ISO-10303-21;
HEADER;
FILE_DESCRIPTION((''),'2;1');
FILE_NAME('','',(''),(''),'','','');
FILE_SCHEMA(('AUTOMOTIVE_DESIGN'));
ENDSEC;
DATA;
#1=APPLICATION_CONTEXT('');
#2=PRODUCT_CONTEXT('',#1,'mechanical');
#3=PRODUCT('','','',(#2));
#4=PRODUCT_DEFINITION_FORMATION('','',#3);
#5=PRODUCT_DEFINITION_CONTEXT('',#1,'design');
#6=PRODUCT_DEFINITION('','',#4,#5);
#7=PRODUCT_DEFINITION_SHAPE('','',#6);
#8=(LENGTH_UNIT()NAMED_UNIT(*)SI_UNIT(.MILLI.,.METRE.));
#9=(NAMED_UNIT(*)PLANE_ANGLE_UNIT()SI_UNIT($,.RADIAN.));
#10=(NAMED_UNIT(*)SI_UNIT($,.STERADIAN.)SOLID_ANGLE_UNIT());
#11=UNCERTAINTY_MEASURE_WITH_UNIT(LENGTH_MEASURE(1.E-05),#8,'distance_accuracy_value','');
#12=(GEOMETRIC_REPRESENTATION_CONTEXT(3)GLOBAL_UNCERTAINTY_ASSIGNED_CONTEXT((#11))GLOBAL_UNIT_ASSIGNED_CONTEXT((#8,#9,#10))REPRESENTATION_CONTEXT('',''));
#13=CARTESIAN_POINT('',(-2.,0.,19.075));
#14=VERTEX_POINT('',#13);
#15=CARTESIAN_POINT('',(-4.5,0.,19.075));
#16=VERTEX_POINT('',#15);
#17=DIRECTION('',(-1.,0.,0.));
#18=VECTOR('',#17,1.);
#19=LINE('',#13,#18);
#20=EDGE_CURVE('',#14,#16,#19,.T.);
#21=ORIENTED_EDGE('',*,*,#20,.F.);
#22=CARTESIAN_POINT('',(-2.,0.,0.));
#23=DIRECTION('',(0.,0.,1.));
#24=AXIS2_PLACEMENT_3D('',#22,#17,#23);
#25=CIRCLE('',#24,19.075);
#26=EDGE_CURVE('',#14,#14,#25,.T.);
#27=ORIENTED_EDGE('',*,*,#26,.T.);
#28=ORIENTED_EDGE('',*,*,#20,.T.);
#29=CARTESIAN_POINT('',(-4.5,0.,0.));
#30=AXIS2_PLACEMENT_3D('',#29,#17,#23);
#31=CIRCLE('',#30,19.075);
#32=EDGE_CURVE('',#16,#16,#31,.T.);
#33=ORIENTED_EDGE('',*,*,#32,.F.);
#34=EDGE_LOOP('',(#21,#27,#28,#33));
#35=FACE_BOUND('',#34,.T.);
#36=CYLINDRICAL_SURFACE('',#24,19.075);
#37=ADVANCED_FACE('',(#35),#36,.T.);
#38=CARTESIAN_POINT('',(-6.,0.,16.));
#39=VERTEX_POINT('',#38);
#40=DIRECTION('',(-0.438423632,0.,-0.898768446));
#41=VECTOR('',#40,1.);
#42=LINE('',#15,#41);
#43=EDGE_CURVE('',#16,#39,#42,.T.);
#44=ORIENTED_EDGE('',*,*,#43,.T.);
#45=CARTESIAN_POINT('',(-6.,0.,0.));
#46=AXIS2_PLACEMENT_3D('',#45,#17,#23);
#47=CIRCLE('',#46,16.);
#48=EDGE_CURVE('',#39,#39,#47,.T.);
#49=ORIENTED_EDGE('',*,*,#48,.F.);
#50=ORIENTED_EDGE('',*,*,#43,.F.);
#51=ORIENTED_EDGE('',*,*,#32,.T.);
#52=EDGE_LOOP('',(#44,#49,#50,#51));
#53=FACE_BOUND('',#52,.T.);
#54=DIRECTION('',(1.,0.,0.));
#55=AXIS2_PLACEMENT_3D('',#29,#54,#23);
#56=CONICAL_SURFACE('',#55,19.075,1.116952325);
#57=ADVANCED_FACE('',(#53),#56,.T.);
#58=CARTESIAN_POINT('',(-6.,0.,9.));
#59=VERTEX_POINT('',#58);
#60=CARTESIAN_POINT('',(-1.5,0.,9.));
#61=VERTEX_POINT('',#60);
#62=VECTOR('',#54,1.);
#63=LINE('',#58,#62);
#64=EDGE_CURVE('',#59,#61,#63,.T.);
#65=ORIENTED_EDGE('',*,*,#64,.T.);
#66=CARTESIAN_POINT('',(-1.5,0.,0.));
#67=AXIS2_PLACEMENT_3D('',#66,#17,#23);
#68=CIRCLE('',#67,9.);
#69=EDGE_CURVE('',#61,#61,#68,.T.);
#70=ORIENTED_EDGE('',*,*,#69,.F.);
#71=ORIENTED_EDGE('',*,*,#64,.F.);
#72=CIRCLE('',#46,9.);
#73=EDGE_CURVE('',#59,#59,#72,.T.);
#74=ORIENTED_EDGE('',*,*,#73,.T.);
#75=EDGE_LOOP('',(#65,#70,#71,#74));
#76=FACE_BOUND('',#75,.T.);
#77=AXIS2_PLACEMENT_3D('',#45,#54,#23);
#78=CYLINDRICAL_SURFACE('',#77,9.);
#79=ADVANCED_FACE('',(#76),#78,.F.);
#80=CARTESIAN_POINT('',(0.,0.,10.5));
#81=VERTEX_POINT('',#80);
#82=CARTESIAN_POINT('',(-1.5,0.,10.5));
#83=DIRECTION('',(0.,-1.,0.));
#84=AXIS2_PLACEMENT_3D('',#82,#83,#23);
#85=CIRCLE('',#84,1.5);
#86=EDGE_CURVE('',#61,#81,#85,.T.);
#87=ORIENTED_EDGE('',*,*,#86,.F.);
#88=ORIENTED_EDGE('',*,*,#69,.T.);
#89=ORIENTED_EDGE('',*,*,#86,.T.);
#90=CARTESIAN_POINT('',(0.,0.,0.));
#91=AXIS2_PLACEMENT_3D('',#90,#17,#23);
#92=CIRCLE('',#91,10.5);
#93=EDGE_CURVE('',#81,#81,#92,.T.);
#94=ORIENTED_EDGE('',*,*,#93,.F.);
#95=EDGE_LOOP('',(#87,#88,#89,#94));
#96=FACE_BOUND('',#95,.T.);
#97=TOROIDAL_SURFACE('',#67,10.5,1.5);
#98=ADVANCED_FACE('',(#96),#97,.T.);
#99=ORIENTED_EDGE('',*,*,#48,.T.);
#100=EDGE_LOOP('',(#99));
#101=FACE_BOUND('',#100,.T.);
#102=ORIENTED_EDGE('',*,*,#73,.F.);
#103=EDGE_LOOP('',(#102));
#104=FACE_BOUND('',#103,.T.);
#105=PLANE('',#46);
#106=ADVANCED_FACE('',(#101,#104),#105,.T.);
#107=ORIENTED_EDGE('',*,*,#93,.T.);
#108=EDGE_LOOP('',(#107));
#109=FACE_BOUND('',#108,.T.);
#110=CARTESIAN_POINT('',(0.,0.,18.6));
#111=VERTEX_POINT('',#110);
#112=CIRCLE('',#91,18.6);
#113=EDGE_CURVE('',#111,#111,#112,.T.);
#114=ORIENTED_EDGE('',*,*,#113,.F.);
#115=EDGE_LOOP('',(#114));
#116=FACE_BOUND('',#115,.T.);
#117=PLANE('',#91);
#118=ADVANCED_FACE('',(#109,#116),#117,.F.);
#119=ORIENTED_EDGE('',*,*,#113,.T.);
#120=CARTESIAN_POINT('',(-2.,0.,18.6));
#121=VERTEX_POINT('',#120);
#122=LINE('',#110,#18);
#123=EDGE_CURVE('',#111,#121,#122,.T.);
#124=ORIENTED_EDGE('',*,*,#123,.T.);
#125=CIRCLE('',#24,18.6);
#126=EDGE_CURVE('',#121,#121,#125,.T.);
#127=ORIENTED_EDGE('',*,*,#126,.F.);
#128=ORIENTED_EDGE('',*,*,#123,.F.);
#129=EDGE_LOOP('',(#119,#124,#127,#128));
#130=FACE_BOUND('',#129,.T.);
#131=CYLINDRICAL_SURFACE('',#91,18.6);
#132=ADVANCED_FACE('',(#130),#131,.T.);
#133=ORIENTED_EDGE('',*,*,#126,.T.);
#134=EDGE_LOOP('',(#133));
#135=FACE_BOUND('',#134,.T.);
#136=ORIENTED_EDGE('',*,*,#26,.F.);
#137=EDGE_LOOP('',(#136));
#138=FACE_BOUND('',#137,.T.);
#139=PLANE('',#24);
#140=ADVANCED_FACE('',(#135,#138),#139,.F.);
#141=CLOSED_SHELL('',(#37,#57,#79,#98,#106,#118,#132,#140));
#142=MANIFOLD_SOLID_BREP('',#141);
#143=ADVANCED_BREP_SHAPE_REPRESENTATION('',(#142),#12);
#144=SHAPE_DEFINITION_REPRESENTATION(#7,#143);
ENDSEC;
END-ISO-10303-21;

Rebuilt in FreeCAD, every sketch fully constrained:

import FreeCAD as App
import Part
import Sketcher


def edges_at(feature, points):
    """Names of the edges that pass closest to the given points."""
    edges = feature.Shape.Edges
    near = lambda p: min(range(len(edges)), key=lambda i: edges[i].distToShape(Part.Vertex(*p))[0])
    return sorted({f"Edge{near(p) + 1}" for p in points})

doc = App.newDocument("Part")
body = doc.addObject("PartDesign::Body", "Body")

# Sketch on XZ plane
sketch1 = body.newObject("Sketcher::SketchObject", "Sketch")
sketch1.AttachmentSupport = (doc.getObject("XZ_Plane"), [""])
sketch1.MapMode = "FlatFace"
sketch1.addGeometry([
    Part.LineSegment(App.Vector(-6, 9, 0), App.Vector(0, 9, 0)),  # 0
    Part.LineSegment(App.Vector(0, 9, 0), App.Vector(0, 18.6, 0)),  # 1
    Part.LineSegment(App.Vector(0, 18.6, 0), App.Vector(-2, 18.6, 0)),  # 2
    Part.LineSegment(App.Vector(-2, 18.6, 0), App.Vector(-2, 19.07, 0)),  # 3
    Part.LineSegment(App.Vector(-2, 19.07, 0), App.Vector(-4.5, 19.07, 0)),  # 4
    Part.LineSegment(App.Vector(-4.5, 19.07, 0), App.Vector(-6, 16, 0)),  # 5
    Part.LineSegment(App.Vector(-6, 16, 0), App.Vector(-6, 9, 0)),  # 6
], False)
sketch1.addConstraint([
    Sketcher.Constraint("Coincident", 0, 2, 1, 1),
    Sketcher.Constraint("Coincident", 1, 2, 2, 1),
    Sketcher.Constraint("Coincident", 2, 2, 3, 1),
    Sketcher.Constraint("Coincident", 3, 2, 4, 1),
    Sketcher.Constraint("Coincident", 4, 2, 5, 1),
    Sketcher.Constraint("Coincident", 5, 2, 6, 1),
    Sketcher.Constraint("Coincident", 6, 2, 0, 1),
    Sketcher.Constraint("Horizontal", 0),
    Sketcher.Constraint("Vertical", 1),
    Sketcher.Constraint("Horizontal", 2),
    Sketcher.Constraint("Vertical", 3),
    Sketcher.Constraint("Horizontal", 4),
    Sketcher.Constraint("Vertical", 6),
    Sketcher.Constraint("PointOnObject", 0, 2, -2),
    Sketcher.Constraint("DistanceX", 0, 1, 0, 2, 6.0),
    Sketcher.Constraint("DistanceX", 2, 2, 2, 1, 2.0),
    Sketcher.Constraint("DistanceY", 6, 2, 6, 1, 7.0),
    Sketcher.Constraint("DistanceX", 4, 2, 4, 1, 2.5),
    Sketcher.Constraint("DistanceY", 1, 1, 1, 2, 9.6),
    Sketcher.Constraint("DistanceY", -1, 1, 0, 2, 9.0),
    Sketcher.Constraint("DistanceY", 3, 1, 3, 2, 0.475),
])
revolution = body.newObject("PartDesign::Revolution", "Revolution")
revolution.Profile = sketch1
revolution.ReferenceAxis = (sketch1, ["H_Axis"])
revolution.Angle = 360
doc.recompute()

fillet = body.newObject("PartDesign::Fillet", "Fillet")
fillet.Base = (revolution, edges_at(revolution, [(0, 0, -9)]))
fillet.Radius = 1.5

doc.recompute()
